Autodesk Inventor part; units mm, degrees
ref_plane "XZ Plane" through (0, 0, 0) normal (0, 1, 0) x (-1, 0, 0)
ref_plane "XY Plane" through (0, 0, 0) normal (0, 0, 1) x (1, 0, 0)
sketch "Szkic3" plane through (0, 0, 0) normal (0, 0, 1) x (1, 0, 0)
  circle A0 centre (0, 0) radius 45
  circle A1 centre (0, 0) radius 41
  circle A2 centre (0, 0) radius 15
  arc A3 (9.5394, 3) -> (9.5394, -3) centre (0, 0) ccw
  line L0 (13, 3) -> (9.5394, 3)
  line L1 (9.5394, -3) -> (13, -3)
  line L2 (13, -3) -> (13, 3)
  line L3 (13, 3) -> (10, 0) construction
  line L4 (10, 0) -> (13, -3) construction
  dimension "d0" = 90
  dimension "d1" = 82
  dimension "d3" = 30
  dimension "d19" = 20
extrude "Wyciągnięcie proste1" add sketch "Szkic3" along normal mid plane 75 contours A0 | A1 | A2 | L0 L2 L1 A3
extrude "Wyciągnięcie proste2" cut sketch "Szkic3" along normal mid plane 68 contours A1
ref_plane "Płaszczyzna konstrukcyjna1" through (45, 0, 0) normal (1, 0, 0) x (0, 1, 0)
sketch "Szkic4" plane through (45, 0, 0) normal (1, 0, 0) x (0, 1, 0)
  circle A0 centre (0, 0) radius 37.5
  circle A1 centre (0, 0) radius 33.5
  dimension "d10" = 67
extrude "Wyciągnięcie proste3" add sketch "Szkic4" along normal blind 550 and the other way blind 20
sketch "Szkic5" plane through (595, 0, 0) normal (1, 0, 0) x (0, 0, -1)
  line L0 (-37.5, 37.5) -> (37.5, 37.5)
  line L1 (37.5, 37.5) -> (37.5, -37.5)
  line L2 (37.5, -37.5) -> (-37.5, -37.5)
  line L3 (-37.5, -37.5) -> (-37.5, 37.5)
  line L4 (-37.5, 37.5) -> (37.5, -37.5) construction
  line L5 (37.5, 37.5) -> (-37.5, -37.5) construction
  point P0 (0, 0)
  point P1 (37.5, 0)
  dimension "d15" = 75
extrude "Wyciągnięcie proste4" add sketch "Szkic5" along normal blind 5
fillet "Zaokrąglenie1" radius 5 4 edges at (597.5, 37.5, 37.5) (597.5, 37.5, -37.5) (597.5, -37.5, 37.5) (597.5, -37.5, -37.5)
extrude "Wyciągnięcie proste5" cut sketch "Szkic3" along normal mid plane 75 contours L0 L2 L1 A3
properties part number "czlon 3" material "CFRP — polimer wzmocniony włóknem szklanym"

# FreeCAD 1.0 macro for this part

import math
import FreeCAD as App
import Part
import Sketcher


def edges_at(feature, points):
    """Names of the edges that pass closest to the given points."""
    edges = feature.Shape.Edges
    near = lambda p: min(range(len(edges)), key=lambda i: edges[i].distToShape(Part.Vertex(*p))[0])
    return sorted({f"Edge{near(p) + 1}" for p in points})

doc = App.newDocument("Part")
body = doc.addObject("PartDesign::Body", "Body")

sketch1 = body.newObject("Sketcher::SketchObject", "Sketch")
sketch1.AttachmentSupport = (doc.getObject("XY_Plane"), [""])
sketch1.MapMode = "FlatFace"
sketch1.addGeometry(Part.Circle(App.Vector(0, 0, 0), App.Vector(0, 0, 1), 45), False)
sketch1.addConstraint([
    Sketcher.Constraint("Coincident", 0, 3, -1, 1),
    Sketcher.Constraint("Diameter", 0, 90.0),
])
pad1 = body.newObject("PartDesign::Pad", "Pad")
pad1.Profile = sketch1
pad1.Length = 75
pad1.Midplane = True

sketch2 = body.newObject("Sketcher::SketchObject", "Sketch001")
sketch2.AttachmentSupport = (doc.getObject("XY_Plane"), [""])
sketch2.MapMode = "FlatFace"
sketch2.addGeometry([
    Part.Circle(App.Vector(0, 0, 0), App.Vector(0, 0, 1), 41),
    Part.Circle(App.Vector(0, 0, 0), App.Vector(0, 0, 1), 15),
], False)
sketch2.addConstraint([
    Sketcher.Constraint("Coincident", 0, 3, -1, 1),
    Sketcher.Constraint("Coincident", 1, 3, -1, 1),
    Sketcher.Constraint("Diameter", 0, 82.0),
    Sketcher.Constraint("Diameter", 1, 30.0),
])
pocket1 = body.newObject("PartDesign::Pocket", "Pocket")
pocket1.Profile = sketch2
pocket1.Length = 68
pocket1.Midplane = True

sketch3 = body.newObject("Sketcher::SketchObject", "Sketch002")
sketch3.AttachmentSupport = (doc.getObject("YZ_Plane"), [""])
sketch3.MapMode = "FlatFace"
sketch3.AttachmentOffset = App.Placement(App.Vector(0, 0, 45), App.Rotation())
sketch3.addGeometry([
    Part.Circle(App.Vector(0, 0, 0), App.Vector(0, 0, 1), 37.5),
    Part.Circle(App.Vector(0, 0, 0), App.Vector(0, 0, 1), 33.5),
], False)
sketch3.addConstraint([
    Sketcher.Constraint("Coincident", 0, 3, -1, 1),
    Sketcher.Constraint("Coincident", 1, 3, -1, 1),
    Sketcher.Constraint("Diameter", 1, 67.0),
    Sketcher.Constraint("Diameter", 0, 75.0),
])
pad2 = body.newObject("PartDesign::Pad", "Pad001")
pad2.Profile = sketch3
pad2.Type = "TwoLengths"
pad2.Length = 550
pad2.Length2 = 20

sketch4 = body.newObject("Sketcher::SketchObject", "Sketch003")
sketch4.AttachmentSupport = (doc.getObject("YZ_Plane"), [""])
sketch4.MapMode = "FlatFace"
sketch4.AttachmentOffset = App.Placement(App.Vector(0, 0, 595), App.Rotation())
sketch4.addGeometry([
    Part.LineSegment(App.Vector(37.5, -37.5, 0), App.Vector(37.5, 37.5, 0)),
    Part.LineSegment(App.Vector(37.5, 37.5, 0), App.Vector(-37.5, 37.5, 0)),
    Part.LineSegment(App.Vector(-37.5, 37.5, 0), App.Vector(-37.5, -37.5, 0)),
    Part.LineSegment(App.Vector(-37.5, -37.5, 0), App.Vector(37.5, -37.5, 0)),
], False)
sketch4.addConstraint([
    Sketcher.Constraint("Coincident", 0, 2, 1, 1),
    Sketcher.Constraint("Coincident", 1, 2, 2, 1),
    Sketcher.Constraint("Coincident", 2, 2, 3, 1),
    Sketcher.Constraint("Coincident", 3, 2, 0, 1),
    Sketcher.Constraint("Vertical", 0),
    Sketcher.Constraint("Horizontal", 1),
    Sketcher.Constraint("Vertical", 2),
    Sketcher.Constraint("Horizontal", 3),
    Sketcher.Constraint("Symmetric", 0, 2, 2, 2, -1, 1),
    Sketcher.Constraint("Equal", 3, 0),
    Sketcher.Constraint("DistanceX", 1, 2, 1, 1, 75.0),
])
pad3 = body.newObject("PartDesign::Pad", "Pad002")
pad3.Profile = sketch4
pad3.Length = 5
doc.recompute()

fillet = body.newObject("PartDesign::Fillet", "Fillet")
fillet.Base = (pad3, edges_at(pad3, [
    (597.5, 37.5, 37.5),
    (597.5, 37.5, -37.5),
    (597.5, -37.5, 37.5),
    (597.5, -37.5, -37.5),
]))
fillet.Radius = 5

sketch5 = body.newObject("Sketcher::SketchObject", "Sketch004")
sketch5.AttachmentSupport = (doc.getObject("XY_Plane"), [""])
sketch5.MapMode = "FlatFace"
sketch5.addGeometry([
    Part.LineSegment(App.Vector(13, 3, 0), App.Vector(9.5394, 3, 0)),
    Part.ArcOfCircle(Part.Circle(App.Vector(0, 0, 0), App.Vector(0, 0, 1), 10.000008), math.radians(17.457589), math.radians(342.542411)),
    Part.LineSegment(App.Vector(9.5394, -3, 0), App.Vector(13, -3, 0)),
    Part.LineSegment(App.Vector(13, -3, 0), App.Vector(13, 3, 0)),
], False)
sketch5.addConstraint([
    Sketcher.Constraint("Coincident", 0, 2, 1, 1),
    Sketcher.Constraint("Coincident", 1, 2, 2, 1),
    Sketcher.Constraint("Coincident", 2, 2, 3, 1),
    Sketcher.Constraint("Coincident", 3, 2, 0, 1),
    Sketcher.Constraint("Horizontal", 0),
    Sketcher.Constraint("Horizontal", 2),
    Sketcher.Constraint("Vertical", 3),
    Sketcher.Constraint("Coincident", 1, 3, -1, 1),
    Sketcher.Constraint("Vertical", 0, 2, 1, 2),
    Sketcher.Constraint("Radius", 1, 10.0),
    Sketcher.Constraint("DistanceY", 3, 1, 3, 2, 6.0),
    Sketcher.Constraint("DistanceX", -1, 1, 2, 2, 13.0),
])
pocket2 = body.newObject("PartDesign::Pocket", "Pocket001")
pocket2.Profile = sketch5
pocket2.Length = 75
pocket2.Midplane = True

doc.recompute()
